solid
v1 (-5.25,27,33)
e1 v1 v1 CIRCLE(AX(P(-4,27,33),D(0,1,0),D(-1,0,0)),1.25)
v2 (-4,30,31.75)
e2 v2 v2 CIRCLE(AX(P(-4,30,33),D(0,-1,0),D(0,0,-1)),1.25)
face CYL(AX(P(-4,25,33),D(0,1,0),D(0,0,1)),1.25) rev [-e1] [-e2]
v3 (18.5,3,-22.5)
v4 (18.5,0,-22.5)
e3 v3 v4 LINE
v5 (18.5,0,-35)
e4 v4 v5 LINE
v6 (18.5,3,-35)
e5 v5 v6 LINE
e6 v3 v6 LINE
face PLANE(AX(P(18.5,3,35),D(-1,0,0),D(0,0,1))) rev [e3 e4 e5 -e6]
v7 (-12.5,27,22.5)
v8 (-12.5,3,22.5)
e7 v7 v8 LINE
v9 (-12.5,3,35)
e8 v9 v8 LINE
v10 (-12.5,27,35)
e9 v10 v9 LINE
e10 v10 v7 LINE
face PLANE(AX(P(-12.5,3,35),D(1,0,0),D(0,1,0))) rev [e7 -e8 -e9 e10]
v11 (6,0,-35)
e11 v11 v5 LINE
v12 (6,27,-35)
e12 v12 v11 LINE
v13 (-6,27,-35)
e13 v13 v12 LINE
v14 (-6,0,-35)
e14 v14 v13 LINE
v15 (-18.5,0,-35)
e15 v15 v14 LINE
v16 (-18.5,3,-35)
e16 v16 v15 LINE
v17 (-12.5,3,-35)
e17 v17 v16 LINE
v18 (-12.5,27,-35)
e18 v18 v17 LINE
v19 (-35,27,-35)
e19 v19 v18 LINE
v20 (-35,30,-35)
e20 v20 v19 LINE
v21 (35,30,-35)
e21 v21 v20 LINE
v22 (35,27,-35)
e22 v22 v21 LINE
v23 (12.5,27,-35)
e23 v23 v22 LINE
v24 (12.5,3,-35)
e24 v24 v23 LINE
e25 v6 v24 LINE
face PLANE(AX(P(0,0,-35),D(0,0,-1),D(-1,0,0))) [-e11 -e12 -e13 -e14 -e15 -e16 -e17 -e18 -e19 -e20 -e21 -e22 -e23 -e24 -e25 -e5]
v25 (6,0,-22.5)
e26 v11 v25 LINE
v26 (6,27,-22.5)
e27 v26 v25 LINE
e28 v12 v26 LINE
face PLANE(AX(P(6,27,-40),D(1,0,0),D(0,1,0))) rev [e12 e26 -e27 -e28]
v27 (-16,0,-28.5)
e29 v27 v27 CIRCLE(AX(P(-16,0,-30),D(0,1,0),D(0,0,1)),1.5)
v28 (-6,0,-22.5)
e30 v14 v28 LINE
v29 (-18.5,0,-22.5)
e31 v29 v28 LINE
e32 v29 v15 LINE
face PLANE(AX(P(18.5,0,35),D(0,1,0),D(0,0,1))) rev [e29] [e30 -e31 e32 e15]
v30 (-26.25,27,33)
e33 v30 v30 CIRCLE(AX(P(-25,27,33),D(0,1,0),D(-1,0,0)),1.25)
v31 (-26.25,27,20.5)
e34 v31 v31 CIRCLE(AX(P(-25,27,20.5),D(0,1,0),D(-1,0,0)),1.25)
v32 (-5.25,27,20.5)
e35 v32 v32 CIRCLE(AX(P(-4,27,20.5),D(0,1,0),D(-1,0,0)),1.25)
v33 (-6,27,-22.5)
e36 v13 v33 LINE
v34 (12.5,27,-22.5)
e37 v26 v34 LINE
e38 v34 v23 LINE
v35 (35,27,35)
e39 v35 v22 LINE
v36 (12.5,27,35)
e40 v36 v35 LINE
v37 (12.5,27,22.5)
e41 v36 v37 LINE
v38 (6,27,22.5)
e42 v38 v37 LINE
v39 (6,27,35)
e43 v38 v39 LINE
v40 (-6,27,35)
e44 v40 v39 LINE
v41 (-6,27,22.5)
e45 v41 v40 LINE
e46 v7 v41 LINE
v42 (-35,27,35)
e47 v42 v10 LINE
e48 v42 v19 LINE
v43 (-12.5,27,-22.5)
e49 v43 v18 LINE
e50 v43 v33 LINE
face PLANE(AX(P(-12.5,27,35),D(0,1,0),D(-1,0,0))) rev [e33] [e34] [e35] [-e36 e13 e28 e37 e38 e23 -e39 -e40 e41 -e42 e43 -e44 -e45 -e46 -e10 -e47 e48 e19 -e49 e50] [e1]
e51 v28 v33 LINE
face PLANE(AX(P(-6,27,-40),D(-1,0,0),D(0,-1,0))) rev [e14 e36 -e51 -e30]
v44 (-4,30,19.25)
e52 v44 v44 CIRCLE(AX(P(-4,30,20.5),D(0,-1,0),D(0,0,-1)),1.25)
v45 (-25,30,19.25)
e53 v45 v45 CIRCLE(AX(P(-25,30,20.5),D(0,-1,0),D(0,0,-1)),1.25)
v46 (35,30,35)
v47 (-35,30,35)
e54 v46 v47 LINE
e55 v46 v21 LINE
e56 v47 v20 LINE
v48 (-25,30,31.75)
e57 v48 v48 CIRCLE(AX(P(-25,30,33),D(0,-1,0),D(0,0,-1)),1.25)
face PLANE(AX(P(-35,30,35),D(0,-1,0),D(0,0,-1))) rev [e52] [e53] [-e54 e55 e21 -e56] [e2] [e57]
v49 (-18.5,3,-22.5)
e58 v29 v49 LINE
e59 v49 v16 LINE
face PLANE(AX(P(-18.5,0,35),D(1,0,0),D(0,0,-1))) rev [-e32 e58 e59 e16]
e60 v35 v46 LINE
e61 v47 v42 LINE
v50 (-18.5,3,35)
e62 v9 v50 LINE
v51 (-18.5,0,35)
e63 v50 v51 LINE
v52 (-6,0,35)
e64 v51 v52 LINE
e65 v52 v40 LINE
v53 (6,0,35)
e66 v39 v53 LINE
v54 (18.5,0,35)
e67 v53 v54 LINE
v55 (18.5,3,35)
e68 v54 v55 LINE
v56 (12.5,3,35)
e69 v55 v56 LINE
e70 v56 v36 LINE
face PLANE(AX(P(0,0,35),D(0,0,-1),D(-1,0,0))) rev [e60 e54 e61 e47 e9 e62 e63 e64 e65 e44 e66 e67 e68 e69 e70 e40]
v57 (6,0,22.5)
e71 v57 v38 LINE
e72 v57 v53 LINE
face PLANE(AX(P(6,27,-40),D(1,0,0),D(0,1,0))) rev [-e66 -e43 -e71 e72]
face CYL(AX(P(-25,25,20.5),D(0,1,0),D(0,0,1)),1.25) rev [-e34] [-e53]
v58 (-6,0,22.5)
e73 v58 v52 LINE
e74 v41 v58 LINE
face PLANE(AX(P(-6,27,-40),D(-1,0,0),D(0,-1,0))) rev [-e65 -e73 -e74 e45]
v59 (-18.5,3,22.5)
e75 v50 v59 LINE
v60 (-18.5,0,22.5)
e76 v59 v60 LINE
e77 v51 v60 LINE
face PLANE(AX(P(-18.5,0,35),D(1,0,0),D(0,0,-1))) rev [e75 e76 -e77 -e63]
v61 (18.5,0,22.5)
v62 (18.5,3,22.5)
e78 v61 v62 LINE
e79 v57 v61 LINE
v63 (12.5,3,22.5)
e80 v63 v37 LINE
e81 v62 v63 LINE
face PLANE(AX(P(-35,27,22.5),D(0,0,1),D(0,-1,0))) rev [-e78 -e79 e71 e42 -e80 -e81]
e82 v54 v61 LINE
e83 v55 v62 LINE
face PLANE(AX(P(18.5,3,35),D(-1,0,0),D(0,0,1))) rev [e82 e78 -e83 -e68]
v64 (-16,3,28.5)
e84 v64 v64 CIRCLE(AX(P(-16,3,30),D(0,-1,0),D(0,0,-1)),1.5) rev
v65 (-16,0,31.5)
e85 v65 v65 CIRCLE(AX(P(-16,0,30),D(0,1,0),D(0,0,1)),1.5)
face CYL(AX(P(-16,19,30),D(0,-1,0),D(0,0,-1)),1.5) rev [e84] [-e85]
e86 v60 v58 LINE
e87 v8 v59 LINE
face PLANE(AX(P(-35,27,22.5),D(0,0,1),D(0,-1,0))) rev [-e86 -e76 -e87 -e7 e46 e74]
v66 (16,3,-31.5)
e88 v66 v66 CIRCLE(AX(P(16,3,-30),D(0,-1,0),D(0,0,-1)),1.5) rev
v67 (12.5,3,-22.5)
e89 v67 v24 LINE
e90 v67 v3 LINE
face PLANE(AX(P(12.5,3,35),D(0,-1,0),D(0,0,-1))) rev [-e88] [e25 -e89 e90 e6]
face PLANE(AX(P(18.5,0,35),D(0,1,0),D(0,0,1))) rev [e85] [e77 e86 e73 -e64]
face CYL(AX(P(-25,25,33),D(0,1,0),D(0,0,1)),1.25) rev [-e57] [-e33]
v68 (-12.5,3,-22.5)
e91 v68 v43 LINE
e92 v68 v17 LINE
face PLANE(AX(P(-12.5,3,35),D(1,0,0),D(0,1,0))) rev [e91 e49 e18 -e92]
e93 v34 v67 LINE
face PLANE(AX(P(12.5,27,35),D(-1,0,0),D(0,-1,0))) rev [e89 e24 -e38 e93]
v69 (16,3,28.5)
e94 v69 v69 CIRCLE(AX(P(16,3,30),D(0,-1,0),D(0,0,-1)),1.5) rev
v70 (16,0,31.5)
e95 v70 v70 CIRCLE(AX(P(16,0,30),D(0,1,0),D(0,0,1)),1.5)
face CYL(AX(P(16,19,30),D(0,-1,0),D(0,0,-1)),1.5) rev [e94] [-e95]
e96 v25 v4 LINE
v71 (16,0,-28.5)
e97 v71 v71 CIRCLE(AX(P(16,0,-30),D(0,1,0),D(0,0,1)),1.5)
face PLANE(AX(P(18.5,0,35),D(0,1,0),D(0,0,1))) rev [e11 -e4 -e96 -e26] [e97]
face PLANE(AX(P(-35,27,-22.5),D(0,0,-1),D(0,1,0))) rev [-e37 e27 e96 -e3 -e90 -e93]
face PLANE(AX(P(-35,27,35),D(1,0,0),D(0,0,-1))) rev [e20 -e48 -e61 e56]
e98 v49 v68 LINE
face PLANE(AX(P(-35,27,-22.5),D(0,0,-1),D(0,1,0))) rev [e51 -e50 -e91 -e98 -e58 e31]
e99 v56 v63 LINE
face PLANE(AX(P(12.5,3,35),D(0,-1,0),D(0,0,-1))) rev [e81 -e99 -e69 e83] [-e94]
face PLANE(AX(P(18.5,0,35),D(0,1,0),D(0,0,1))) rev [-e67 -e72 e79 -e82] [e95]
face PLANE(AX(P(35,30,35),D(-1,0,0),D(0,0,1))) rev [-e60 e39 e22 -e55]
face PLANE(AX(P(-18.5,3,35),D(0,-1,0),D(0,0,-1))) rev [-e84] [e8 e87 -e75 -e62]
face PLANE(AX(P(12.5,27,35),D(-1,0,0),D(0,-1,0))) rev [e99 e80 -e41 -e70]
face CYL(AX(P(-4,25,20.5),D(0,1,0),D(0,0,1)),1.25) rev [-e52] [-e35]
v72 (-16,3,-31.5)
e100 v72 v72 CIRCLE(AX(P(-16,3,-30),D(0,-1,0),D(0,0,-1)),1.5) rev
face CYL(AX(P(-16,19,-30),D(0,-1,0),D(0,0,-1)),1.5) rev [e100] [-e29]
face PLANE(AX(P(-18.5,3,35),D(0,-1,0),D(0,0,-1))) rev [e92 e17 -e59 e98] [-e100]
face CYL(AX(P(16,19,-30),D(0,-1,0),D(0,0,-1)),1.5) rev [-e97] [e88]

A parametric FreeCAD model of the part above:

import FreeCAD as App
import Part
import Sketcher

doc = App.newDocument("Part")
body = doc.addObject("PartDesign::Body", "Body")

# Sketch on XY plane
sketch1 = body.newObject("Sketcher::SketchObject", "Sketch")
sketch1.AttachmentSupport = (doc.getObject("XY_Plane"), [""])
sketch1.MapMode = "FlatFace"
sketch1.addGeometry([
    Part.LineSegment(App.Vector(-18.5, 3, 0), App.Vector(-18.5, 0, 0)),  # 0
    Part.LineSegment(App.Vector(-18.5, 0, 0), App.Vector(18.5, 0, 0)),  # 1
    Part.LineSegment(App.Vector(18.5, 0, 0), App.Vector(18.5, 3, 0)),  # 2
    Part.LineSegment(App.Vector(18.5, 3, 0), App.Vector(12.5, 3, 0)),  # 3
    Part.LineSegment(App.Vector(12.5, 3, 0), App.Vector(12.5, 27, 0)),  # 4
    Part.LineSegment(App.Vector(12.5, 27, 0), App.Vector(35, 27, 0)),  # 5
    Part.LineSegment(App.Vector(35, 27, 0), App.Vector(35, 30, 0)),  # 6
    Part.LineSegment(App.Vector(35, 30, 0), App.Vector(-35, 30, 0)),  # 7
    Part.LineSegment(App.Vector(-35, 30, 0), App.Vector(-35, 27, 0)),  # 8
    Part.LineSegment(App.Vector(-35, 27, 0), App.Vector(-12.5, 27, 0)),  # 9
    Part.LineSegment(App.Vector(-12.5, 27, 0), App.Vector(-12.5, 3, 0)),  # 10
    Part.LineSegment(App.Vector(-12.5, 3, 0), App.Vector(-18.5, 3, 0)),  # 11
], False)
sketch1.addConstraint([
    Sketcher.Constraint("Coincident", 0, 2, 1, 1),
    Sketcher.Constraint("Coincident", 1, 2, 2, 1),
    Sketcher.Constraint("Coincident", 2, 2, 3, 1),
    Sketcher.Constraint("Coincident", 3, 2, 4, 1),
    Sketcher.Constraint("Coincident", 4, 2, 5, 1),
    Sketcher.Constraint("Coincident", 5, 2, 6, 1),
    Sketcher.Constraint("Coincident", 6, 2, 7, 1),
    Sketcher.Constraint("Coincident", 7, 2, 8, 1),
    Sketcher.Constraint("Coincident", 8, 2, 9, 1),
    Sketcher.Constraint("Coincident", 9, 2, 10, 1),
    Sketcher.Constraint("Coincident", 10, 2, 11, 1),
    Sketcher.Constraint("Coincident", 11, 2, 0, 1),
    Sketcher.Constraint("Vertical", 0),
    Sketcher.Constraint("Horizontal", 1),
    Sketcher.Constraint("Vertical", 2),
    Sketcher.Constraint("Horizontal", 3),
    Sketcher.Constraint("Vertical", 4),
    Sketcher.Constraint("Horizontal", 5),
    Sketcher.Constraint("Vertical", 6),
    Sketcher.Constraint("Horizontal", 7),
    Sketcher.Constraint("Vertical", 8),
    Sketcher.Constraint("Horizontal", 9),
    Sketcher.Constraint("Vertical", 10),
    Sketcher.Constraint("Horizontal", 11),
    Sketcher.Constraint("Symmetric", 0, 2, 1, 2, -1, 1),
    Sketcher.Constraint("Symmetric", 5, 2, 8, 2, -2),
    Sketcher.Constraint("Symmetric", 3, 2, 10, 2, -2),
    Sketcher.Constraint("Equal", 2, 6),
    Sketcher.Constraint("DistanceX", 1, 1, 1, 2, 37.0),
    Sketcher.Constraint("DistanceX", 3, 2, 3, 1, 6.0),
    Sketcher.Constraint("DistanceX", 7, 2, 7, 1, 70.0),
    Sketcher.Constraint("DistanceY", 0, 2, 0, 1, 3.0),
    Sketcher.Constraint("DistanceY", 4, 1, 4, 2, 24.0),
])
pad1 = body.newObject("PartDesign::Pad", "Pad")
pad1.Profile = sketch1
pad1.Length = 70
pad1.Midplane = True

# Sketch on YZ plane
sketch2 = body.newObject("Sketcher::SketchObject", "Sketch001")
sketch2.AttachmentSupport = (doc.getObject("YZ_Plane"), [""])
sketch2.MapMode = "FlatFace"
sketch2.addGeometry([
    Part.LineSegment(App.Vector(27, 22, 0), App.Vector(0, 22, 0)),
    Part.LineSegment(App.Vector(0, 22, 0), App.Vector(0, -22, 0)),
    Part.LineSegment(App.Vector(0, -22, 0), App.Vector(27, -22, 0)),
    Part.LineSegment(App.Vector(27, -22, 0), App.Vector(27, 22, 0)),
], False)
sketch2.addConstraint([
    Sketcher.Constraint("Coincident", 0, 2, 1, 1),
    Sketcher.Constraint("Coincident", 1, 2, 2, 1),
    Sketcher.Constraint("Coincident", 2, 2, 3, 1),
    Sketcher.Constraint("Coincident", 3, 2, 0, 1),
    Sketcher.Constraint("Horizontal", 0),
    Sketcher.Constraint("Vertical", 1),
    Sketcher.Constraint("Horizontal", 2),
    Sketcher.Constraint("Vertical", 3),
    Sketcher.Constraint("Symmetric", 0, 2, 1, 2, -1, 1),
    Sketcher.Constraint("DistanceX", 0, 2, 0, 1, 27.0),
    Sketcher.Constraint("DistanceY", 1, 2, 1, 1, 45.0),
])
pocket1 = body.newObject("PartDesign::Pocket", "Pocket")
pocket1.Profile = sketch2
pocket1.Length = 70
pocket1.Midplane = True

# Sketch on XY plane
sketch3 = body.newObject("Sketcher::SketchObject", "Sketch002")
sketch3.AttachmentSupport = (doc.getObject("XY_Plane"), [""])
sketch3.MapMode = "FlatFace"
sketch3.addGeometry([
    Part.LineSegment(App.Vector(-6, 27, 0), App.Vector(-6, 0, 0)),
    Part.LineSegment(App.Vector(-6, 0, 0), App.Vector(6, 0, 0)),
    Part.LineSegment(App.Vector(6, 0, 0), App.Vector(6, 27, 0)),
    Part.LineSegment(App.Vector(6, 27, 0), App.Vector(-6, 27, 0)),
], False)
sketch3.addConstraint([
    Sketcher.Constraint("Coincident", 0, 2, 1, 1),
    Sketcher.Constraint("Coincident", 1, 2, 2, 1),
    Sketcher.Constraint("Coincident", 2, 2, 3, 1),
    Sketcher.Constraint("Coincident", 3, 2, 0, 1),
    Sketcher.Constraint("Vertical", 0),
    Sketcher.Constraint("Horizontal", 1),
    Sketcher.Constraint("Vertical", 2),
    Sketcher.Constraint("Horizontal", 3),
    Sketcher.Constraint("Symmetric", 0, 2, 1, 2, -1, 1),
    Sketcher.Constraint("DistanceX", 1, 1, 1, 2, 12.0),
    Sketcher.Constraint("DistanceY", 0, 2, 0, 1, 27.0),
])
pocket2 = body.newObject("PartDesign::Pocket", "Pocket001")
pocket2.Profile = sketch3
pocket2.Length = 80
pocket2.Midplane = True

# Sketch on XZ plane
sketch4 = body.newObject("Sketcher::SketchObject", "Sketch003")
sketch4.AttachmentSupport = (doc.getObject("XZ_Plane"), [""])
sketch4.MapMode = "FlatFace"
sketch4.addGeometry([
    Part.Circle(App.Vector(-16, 30, 0), App.Vector(0, 0, 1), 1.5),
    Part.Circle(App.Vector(16, 30, 0), App.Vector(0, 0, 1), 1.5),
    Part.Circle(App.Vector(16, -30, 0), App.Vector(0, 0, 1), 1.5),
    Part.Circle(App.Vector(-16, -30, 0), App.Vector(0, 0, 1), 1.5),
], False)
sketch4.addConstraint([
    Sketcher.Constraint("Equal", 0, 1),
    Sketcher.Constraint("Equal", 1, 2),
    Sketcher.Constraint("Equal", 2, 3),
    Sketcher.Constraint("Symmetric", 0, 3, 2, 3, -1, 1),
    Sketcher.Constraint("Symmetric", 1, 3, 3, 3, -1, 1),
    Sketcher.Constraint("Symmetric", 0, 3, 1, 3, -2),
    Sketcher.Constraint("Diameter", 0, 3.0),
    Sketcher.Constraint("DistanceX", 0, 3, -1, 1, 16.0),
    Sketcher.Constraint("DistanceY", -1, 1, 0, 3, 30.0),
])
pocket3 = body.newObject("PartDesign::Pocket", "Pocket002")
pocket3.Profile = sketch4
pocket3.Length = 19

# Sketch on XZ plane
sketch5 = body.newObject("Sketcher::SketchObject", "Sketch004")
sketch5.AttachmentSupport = (doc.getObject("XZ_Plane"), [""])
sketch5.MapMode = "FlatFace"
sketch5.AttachmentOffset = App.Placement(App.Vector(0, 0, -30), App.Rotation())
sketch5.addGeometry([
    Part.Circle(App.Vector(-4, 20.5, 0), App.Vector(0, 0, 1), 1.2),
    Part.Circle(App.Vector(-4, 33, 0), App.Vector(0, 0, 1), 1.2),
    Part.Circle(App.Vector(-25, 33, 0), App.Vector(0, 0, 1), 1.2),
    Part.Circle(App.Vector(-25, 20.5, 0), App.Vector(0, 0, 1), 1.2),
], False)
sketch5.addConstraint([
    Sketcher.Constraint("Equal", 0, 1),
    Sketcher.Constraint("Equal", 1, 2),
    Sketcher.Constraint("Equal", 2, 3),
    Sketcher.Constraint("Horizontal", 1, 3, 2, 3),
    Sketcher.Constraint("Horizontal", 0, 3, 3, 3),
    Sketcher.Constraint("Vertical", 0, 3, 1, 3),
    Sketcher.Constraint("Vertical", 2, 3, 3, 3),
    Sketcher.Constraint("Diameter", 0, 2.5),
    Sketcher.Constraint("DistanceX", 0, 3, -1, 1, 4.0),
    Sketcher.Constraint("DistanceY", -1, 1, 1, 3, 33.0),
    Sketcher.Constraint("DistanceX", 2, 3, -1, 1, 25.0),
    Sketcher.Constraint("DistanceY", -1, 1, 0, 3, 20.5),
])
pocket4 = body.newObject("PartDesign::Pocket", "Pocket003")
pocket4.Profile = sketch5
pocket4.Length = 10
pocket4.Midplane = True

doc.recompute()
